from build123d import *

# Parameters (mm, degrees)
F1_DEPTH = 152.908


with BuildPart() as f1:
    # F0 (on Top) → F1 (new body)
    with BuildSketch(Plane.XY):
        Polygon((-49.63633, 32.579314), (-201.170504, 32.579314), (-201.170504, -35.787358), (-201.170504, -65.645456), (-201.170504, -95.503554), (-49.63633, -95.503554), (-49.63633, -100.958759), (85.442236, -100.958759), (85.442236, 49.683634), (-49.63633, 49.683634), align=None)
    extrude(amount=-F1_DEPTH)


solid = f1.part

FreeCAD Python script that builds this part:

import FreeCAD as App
import Part
import Sketcher
Q = App.Units.Quantity


def add_polygon(sketch, points):
    """Adds a closed chain of lines whose ends are joined by coincident constraints."""
    first, n = sketch.GeometryCount, len(points)
    for a, b in zip(points, points[1:] + points[:1]):
        sketch.addGeometry(Part.LineSegment(App.Vector(*a, 0), App.Vector(*b, 0)), False)
    for i in range(n):
        sketch.addConstraint(Sketcher.Constraint("Coincident", first + i, 2, first + (i + 1) % n, 1))

doc = App.newDocument("Part")
body = doc.addObject("PartDesign::Body", "Body")

# Sketch on XY plane
sketch1 = body.newObject("Sketcher::SketchObject", "Sketch")
sketch1.AttachmentSupport = (doc.getObject("XY_Plane"), [""])
sketch1.MapMode = "FlatFace"
add_polygon(sketch1, [(-50, 33), (-201, 33), (-201, -96), (-50, -96), (-50, -101), (85, -101), (85, 50), (-50, 50)])  # lines 0-7
sketch1.addConstraint([
    Sketcher.Constraint("Horizontal", 0),
    Sketcher.Constraint("Vertical", 1),
    Sketcher.Constraint("Horizontal", 2),
    Sketcher.Constraint("Vertical", 3),
    Sketcher.Constraint("Horizontal", 4),
    Sketcher.Constraint("Vertical", 5),
    Sketcher.Constraint("Horizontal", 6),
    Sketcher.Constraint("Vertical", 7),
    Sketcher.Constraint("Vertical", 3, 2, 6, 2),
    Sketcher.Constraint("DistanceY", 7, 2, 7, 1, Q("17.10432 mm")),
    Sketcher.Constraint("DistanceX", 0, 2, 0, 1, Q("151.534174 mm")),
    Sketcher.Constraint("DistanceX", 4, 1, 4, 2, Q("135.078566 mm")),
    Sketcher.Constraint("DistanceY", 1, 2, 1, 1, Q("128.082868 mm")),
    Sketcher.Constraint("DistanceY", 3, 2, 3, 1, Q("5.455205 mm")),
    Sketcher.Constraint("DistanceX", 2, 2, -1, 1, Q("49.63633 mm")),
    Sketcher.Constraint("DistanceY", 3, 2, -1, 1, Q("100.958759 mm")),
])
pad1 = body.newObject("PartDesign::Pad", "Pad")
pad1.Profile = sketch1
pad1.Length = Q("6.02 in")
pad1.Reversed = True

doc.recompute()
